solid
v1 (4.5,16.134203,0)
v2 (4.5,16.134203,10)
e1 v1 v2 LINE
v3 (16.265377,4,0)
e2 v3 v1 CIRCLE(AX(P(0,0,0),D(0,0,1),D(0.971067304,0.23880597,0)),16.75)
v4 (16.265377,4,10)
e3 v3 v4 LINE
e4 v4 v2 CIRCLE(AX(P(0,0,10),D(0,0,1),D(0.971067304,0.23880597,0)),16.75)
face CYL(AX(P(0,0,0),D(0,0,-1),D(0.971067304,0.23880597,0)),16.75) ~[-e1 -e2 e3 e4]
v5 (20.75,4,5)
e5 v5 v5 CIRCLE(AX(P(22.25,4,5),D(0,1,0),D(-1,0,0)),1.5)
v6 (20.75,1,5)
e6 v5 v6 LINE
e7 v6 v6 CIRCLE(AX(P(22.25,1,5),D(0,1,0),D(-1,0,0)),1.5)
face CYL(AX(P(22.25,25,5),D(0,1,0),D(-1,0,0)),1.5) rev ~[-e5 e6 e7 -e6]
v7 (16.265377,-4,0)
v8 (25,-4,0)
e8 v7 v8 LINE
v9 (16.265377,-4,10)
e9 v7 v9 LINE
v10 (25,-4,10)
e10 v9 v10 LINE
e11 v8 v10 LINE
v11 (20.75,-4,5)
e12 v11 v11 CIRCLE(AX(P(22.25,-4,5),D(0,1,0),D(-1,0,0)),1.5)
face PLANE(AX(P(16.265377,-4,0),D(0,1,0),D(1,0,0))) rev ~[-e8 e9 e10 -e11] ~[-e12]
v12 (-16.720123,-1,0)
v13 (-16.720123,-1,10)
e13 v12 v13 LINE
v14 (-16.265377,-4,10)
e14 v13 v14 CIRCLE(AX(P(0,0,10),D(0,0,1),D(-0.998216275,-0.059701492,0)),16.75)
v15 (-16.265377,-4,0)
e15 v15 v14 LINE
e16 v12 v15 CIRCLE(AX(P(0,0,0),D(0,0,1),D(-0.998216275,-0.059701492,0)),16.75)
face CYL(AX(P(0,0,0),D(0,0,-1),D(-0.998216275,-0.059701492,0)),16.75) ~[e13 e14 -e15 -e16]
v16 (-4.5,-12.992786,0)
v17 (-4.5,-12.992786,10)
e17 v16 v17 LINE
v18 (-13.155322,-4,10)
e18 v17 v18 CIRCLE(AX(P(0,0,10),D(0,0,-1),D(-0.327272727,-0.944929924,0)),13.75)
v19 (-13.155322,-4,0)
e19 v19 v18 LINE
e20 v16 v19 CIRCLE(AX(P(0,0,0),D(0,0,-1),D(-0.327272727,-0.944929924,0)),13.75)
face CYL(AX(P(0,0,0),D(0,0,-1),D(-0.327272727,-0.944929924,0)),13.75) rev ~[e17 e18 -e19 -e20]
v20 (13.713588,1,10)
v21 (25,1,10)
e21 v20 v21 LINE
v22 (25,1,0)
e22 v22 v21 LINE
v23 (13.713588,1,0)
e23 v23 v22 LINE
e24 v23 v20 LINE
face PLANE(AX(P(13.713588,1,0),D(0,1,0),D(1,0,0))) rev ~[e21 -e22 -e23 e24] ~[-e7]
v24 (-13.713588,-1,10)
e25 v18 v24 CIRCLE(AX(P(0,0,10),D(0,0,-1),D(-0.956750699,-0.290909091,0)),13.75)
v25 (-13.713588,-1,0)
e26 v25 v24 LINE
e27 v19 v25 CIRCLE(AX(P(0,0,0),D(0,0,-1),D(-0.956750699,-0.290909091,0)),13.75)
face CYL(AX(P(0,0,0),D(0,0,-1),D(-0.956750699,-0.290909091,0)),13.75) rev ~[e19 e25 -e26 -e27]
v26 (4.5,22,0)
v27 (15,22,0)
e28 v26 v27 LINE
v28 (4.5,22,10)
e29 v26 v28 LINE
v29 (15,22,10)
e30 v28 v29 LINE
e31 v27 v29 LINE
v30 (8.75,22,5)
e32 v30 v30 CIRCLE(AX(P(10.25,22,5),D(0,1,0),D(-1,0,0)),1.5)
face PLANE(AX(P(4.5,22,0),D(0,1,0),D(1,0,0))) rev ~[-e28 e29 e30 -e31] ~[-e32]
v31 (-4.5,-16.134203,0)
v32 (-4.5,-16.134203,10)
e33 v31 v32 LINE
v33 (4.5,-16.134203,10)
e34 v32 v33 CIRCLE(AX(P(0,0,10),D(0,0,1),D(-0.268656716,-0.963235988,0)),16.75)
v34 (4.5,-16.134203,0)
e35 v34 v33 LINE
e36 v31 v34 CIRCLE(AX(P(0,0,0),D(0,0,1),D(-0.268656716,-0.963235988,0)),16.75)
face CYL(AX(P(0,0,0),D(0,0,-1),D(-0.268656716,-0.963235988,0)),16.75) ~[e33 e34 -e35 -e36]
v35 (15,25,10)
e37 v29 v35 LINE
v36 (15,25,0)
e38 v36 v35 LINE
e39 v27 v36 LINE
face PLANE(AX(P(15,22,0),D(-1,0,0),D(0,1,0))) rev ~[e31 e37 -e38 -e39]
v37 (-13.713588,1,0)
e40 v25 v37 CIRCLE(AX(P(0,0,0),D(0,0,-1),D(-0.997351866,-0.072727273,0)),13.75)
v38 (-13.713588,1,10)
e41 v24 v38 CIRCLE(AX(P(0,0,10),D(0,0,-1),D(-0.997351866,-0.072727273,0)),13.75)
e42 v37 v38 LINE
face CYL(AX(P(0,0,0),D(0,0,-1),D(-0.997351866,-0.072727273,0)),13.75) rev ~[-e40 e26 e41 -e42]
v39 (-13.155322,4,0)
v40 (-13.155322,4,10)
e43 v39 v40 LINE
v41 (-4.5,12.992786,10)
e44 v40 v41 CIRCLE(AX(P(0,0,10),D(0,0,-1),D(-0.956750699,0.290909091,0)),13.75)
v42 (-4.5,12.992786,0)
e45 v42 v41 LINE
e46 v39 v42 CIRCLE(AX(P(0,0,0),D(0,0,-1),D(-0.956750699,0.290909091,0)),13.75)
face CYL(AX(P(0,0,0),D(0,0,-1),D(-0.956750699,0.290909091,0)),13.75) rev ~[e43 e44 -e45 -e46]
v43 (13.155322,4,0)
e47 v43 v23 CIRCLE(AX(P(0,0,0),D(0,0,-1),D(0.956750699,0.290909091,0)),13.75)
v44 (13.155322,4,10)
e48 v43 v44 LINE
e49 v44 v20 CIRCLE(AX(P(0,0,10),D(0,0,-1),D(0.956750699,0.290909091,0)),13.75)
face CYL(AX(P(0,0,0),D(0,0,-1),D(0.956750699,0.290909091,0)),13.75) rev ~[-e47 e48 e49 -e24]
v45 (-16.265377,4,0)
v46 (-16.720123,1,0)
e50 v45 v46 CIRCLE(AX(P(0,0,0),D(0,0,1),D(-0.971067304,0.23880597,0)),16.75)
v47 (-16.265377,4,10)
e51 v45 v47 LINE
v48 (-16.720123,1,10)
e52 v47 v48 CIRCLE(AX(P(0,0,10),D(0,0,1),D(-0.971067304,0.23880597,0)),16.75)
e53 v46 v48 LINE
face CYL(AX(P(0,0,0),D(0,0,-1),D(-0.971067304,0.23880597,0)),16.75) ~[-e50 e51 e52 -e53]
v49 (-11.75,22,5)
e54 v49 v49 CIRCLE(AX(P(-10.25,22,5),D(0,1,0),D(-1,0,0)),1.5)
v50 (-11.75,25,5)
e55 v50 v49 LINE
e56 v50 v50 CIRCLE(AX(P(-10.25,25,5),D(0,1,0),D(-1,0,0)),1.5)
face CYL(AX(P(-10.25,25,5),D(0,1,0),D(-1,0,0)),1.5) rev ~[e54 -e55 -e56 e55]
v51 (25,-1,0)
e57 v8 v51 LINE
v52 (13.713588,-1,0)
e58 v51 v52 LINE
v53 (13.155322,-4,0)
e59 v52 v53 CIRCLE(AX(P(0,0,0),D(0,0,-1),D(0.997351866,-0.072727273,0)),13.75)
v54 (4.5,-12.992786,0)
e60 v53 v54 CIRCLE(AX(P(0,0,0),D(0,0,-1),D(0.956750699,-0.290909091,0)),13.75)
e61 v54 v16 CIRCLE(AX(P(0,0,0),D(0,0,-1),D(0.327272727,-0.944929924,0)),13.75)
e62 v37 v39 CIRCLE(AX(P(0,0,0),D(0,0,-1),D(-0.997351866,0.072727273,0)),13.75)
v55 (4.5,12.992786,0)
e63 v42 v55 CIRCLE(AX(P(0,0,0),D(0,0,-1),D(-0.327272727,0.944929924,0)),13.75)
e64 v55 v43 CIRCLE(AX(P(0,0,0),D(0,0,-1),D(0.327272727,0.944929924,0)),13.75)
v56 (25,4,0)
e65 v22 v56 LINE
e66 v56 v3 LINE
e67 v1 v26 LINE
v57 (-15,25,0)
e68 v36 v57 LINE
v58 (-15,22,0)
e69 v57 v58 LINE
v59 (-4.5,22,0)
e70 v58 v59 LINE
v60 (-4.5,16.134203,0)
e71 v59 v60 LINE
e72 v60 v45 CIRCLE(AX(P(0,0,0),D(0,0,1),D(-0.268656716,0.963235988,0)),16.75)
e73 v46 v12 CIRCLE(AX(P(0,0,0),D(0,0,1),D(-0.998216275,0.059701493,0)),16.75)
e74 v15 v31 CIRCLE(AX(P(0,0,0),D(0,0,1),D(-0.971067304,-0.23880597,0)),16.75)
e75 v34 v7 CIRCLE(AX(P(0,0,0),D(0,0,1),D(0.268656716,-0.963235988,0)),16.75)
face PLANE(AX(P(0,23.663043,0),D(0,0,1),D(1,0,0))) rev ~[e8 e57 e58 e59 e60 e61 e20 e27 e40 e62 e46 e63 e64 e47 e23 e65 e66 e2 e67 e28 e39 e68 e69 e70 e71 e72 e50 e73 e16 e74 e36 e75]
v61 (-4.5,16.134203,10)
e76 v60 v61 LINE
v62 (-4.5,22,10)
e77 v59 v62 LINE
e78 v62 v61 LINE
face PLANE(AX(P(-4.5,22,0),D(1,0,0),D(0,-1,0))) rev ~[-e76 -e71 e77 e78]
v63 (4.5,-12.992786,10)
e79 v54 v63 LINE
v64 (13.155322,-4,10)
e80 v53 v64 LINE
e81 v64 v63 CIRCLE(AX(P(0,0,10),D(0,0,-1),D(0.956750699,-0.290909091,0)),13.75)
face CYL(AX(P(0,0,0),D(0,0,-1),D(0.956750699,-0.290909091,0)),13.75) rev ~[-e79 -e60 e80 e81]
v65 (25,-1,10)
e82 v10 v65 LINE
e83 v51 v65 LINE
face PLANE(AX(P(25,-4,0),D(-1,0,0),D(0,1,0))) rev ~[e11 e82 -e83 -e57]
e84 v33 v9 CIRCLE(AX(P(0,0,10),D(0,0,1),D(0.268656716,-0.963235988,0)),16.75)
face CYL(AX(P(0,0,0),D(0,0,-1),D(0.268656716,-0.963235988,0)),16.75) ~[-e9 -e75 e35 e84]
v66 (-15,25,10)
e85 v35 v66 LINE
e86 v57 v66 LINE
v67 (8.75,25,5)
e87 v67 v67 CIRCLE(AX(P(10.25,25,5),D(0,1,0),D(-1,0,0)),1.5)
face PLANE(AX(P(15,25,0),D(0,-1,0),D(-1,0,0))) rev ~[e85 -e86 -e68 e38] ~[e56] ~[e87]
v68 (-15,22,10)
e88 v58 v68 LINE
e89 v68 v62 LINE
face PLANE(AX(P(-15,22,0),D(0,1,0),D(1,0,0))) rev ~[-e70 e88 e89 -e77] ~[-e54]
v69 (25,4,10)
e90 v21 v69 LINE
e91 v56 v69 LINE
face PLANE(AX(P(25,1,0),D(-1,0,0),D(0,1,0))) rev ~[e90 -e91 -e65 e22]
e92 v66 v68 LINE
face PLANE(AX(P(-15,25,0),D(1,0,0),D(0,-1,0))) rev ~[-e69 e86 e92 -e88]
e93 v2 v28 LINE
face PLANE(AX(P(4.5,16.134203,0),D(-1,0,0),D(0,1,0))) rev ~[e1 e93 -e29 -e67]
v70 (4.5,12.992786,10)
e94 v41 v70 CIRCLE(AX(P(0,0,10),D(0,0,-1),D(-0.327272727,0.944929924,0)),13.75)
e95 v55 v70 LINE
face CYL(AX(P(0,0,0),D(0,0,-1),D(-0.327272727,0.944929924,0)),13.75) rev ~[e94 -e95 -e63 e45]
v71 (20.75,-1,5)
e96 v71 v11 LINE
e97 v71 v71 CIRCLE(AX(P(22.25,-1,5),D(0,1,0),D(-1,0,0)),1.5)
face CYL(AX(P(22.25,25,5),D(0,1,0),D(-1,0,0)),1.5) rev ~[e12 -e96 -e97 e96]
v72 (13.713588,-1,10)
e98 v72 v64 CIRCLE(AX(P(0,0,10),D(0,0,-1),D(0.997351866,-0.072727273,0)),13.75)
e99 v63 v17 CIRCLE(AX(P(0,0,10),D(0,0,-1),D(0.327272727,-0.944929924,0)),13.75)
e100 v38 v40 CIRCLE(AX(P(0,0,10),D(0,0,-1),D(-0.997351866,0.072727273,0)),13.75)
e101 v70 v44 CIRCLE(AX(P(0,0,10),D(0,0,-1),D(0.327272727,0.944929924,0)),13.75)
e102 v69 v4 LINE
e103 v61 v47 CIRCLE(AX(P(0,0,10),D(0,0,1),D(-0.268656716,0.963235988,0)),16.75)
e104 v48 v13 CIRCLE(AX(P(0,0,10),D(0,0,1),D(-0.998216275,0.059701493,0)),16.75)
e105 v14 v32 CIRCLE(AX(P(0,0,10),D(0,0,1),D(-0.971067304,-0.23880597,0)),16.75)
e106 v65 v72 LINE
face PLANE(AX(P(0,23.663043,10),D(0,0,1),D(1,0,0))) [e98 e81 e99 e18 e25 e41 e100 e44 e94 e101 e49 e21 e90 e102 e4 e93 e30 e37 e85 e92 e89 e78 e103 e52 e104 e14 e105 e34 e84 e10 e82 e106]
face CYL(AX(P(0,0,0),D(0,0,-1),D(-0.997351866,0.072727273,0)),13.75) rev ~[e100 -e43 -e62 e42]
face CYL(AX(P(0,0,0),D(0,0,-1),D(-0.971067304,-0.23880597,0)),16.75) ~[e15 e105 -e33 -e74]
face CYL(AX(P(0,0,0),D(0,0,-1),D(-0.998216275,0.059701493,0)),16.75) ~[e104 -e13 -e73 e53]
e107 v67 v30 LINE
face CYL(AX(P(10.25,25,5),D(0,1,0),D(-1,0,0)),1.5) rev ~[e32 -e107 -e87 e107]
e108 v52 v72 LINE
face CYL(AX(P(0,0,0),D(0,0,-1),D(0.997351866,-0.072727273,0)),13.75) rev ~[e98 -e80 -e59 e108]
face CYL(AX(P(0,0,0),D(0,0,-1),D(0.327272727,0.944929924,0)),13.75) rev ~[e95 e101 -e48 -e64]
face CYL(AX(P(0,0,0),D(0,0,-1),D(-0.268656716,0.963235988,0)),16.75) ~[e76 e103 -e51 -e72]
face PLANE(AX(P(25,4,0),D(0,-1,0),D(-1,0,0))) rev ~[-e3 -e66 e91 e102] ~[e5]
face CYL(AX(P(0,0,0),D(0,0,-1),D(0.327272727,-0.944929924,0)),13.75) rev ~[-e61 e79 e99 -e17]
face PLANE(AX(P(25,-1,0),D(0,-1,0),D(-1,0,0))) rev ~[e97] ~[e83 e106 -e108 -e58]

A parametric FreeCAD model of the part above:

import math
import FreeCAD as App
import Part
import Sketcher
from FreeCAD import Vector
Q = App.Units.Quantity

doc = App.newDocument("Part")
body = doc.addObject("PartDesign::Body", "Body")

# Sketch on XY plane
sketch1 = body.newObject("Sketcher::SketchObject", "Sketch")
sketch1.AttachmentSupport = (doc.getObject("XY_Plane"), [""])
sketch1.MapMode = "FlatFace"
sketch1.addGeometry(Part.LineSegment(Vector(15, 22, 0), Vector(15, 25, 0)), False)
sketch1.addGeometry(Part.LineSegment(Vector(15, 25, 0), Vector(-15, 25, 0)), False)
sketch1.addGeometry(Part.LineSegment(Vector(-15, 25, 0), Vector(-15, 22, 0)), False)
sketch1.addGeometry(Part.LineSegment(Vector(-15, 22, 0), Vector(-4.5, 22, 0)), False)
sketch1.addGeometry(Part.LineSegment(Vector(-4.5, 22, 0), Vector(-4.5, 16.1, 0)), False)
sketch1.addGeometry(Part.ArcOfCircle(Part.Circle(Vector(0, 0, 0), Vector(0, 0, 1), 16.8), math.radians(106), math.radians(166)), False)
sketch1.addGeometry(Part.ArcOfCircle(Part.Circle(Vector(0, 0, 0), Vector(0, 0, 1), 16.7), math.radians(166.18), math.radians(176.58)), False)
sketch1.addGeometry(Part.ArcOfCircle(Part.Circle(Vector(0, 0, 0), Vector(0, 0, 1), 16.7), math.radians(176.58), math.radians(183.42)), False)
sketch1.addGeometry(Part.ArcOfCircle(Part.Circle(Vector(0, 0, 0), Vector(0, 0, 1), 16.7), math.radians(-176.58), math.radians(-166.18)), False)
sketch1.addGeometry(Part.ArcOfCircle(Part.Circle(Vector(0, 0, 0), Vector(0, 0, 1), 16.8), math.radians(-166), math.radians(-106)), False)
sketch1.addGeometry(Part.ArcOfCircle(Part.Circle(Vector(0, 0, 0), Vector(0, 0, 1), 16.8), math.radians(-106), math.radians(-74)), False)
sketch1.addGeometry(Part.ArcOfCircle(Part.Circle(Vector(0, 0, 0), Vector(0, 0, 1), 16.8), math.radians(-74), math.radians(-14)), False)
sketch1.addGeometry(Part.LineSegment(Vector(16.3, -4, 0), Vector(25, -4, 0)), False)
sketch1.addGeometry(Part.LineSegment(Vector(25, -4, 0), Vector(25, -1, 0)), False)
sketch1.addGeometry(Part.LineSegment(Vector(25, -1, 0), Vector(13.7, -1, 0)), False)
sketch1.addGeometry(Part.ArcOfCircle(Part.Circle(Vector(0, 0, 0), Vector(0, 0, 1), 13.7), math.radians(-16.91), math.radians(-4.17)), False)
sketch1.addGeometry(Part.ArcOfCircle(Part.Circle(Vector(0, 0, 0), Vector(0, 0, 1), 13.8), math.radians(-71), math.radians(-17)), False)
sketch1.addGeometry(Part.ArcOfCircle(Part.Circle(Vector(0, 0, 0), Vector(0, 0, 1), 13.8), math.radians(-109), math.radians(-71)), False)
sketch1.addGeometry(Part.ArcOfCircle(Part.Circle(Vector(0, 0, 0), Vector(0, 0, 1), 13.8), math.radians(-163), math.radians(-109)), False)
sketch1.addGeometry(Part.ArcOfCircle(Part.Circle(Vector(0, 0, 0), Vector(0, 0, 1), 13.7), math.radians(-175.83), math.radians(-163.09)), False)
sketch1.addGeometry(Part.ArcOfCircle(Part.Circle(Vector(0, 0, 0), Vector(0, 0, 1), 13.7), math.radians(175.83), math.radians(184.17)), False)
sketch1.addGeometry(Part.ArcOfCircle(Part.Circle(Vector(0, 0, 0), Vector(0, 0, 1), 13.7), math.radians(163.09), math.radians(175.83)), False)
sketch1.addGeometry(Part.ArcOfCircle(Part.Circle(Vector(0, 0, 0), Vector(0, 0, 1), 13.8), math.radians(109), math.radians(163)), False)
sketch1.addGeometry(Part.ArcOfCircle(Part.Circle(Vector(0, 0, 0), Vector(0, 0, 1), 13.8), math.radians(71), math.radians(109)), False)
sketch1.addGeometry(Part.ArcOfCircle(Part.Circle(Vector(0, 0, 0), Vector(0, 0, 1), 13.8), math.radians(17), math.radians(71)), False)
sketch1.addGeometry(Part.ArcOfCircle(Part.Circle(Vector(0, 0, 0), Vector(0, 0, 1), 13.7), math.radians(4.17), math.radians(16.91)), False)
sketch1.addGeometry(Part.LineSegment(Vector(13.7, 1, 0), Vector(25, 1, 0)), False)
sketch1.addGeometry(Part.LineSegment(Vector(25, 1, 0), Vector(25, 4, 0)), False)
sketch1.addGeometry(Part.LineSegment(Vector(25, 4, 0), Vector(16.3, 4, 0)), False)
sketch1.addGeometry(Part.ArcOfCircle(Part.Circle(Vector(0, 0, 0), Vector(0, 0, 1), 16.8), math.radians(14), math.radians(74)), False)
sketch1.addGeometry(Part.LineSegment(Vector(4.5, 16.1, 0), Vector(4.5, 22, 0)), False)
sketch1.addGeometry(Part.LineSegment(Vector(4.5, 22, 0), Vector(15, 22, 0)), False)
sketch1.addConstraint(Sketcher.Constraint("Coincident", 0, 2, 1, 1))
sketch1.addConstraint(Sketcher.Constraint("Coincident", 1, 2, 2, 1))
sketch1.addConstraint(Sketcher.Constraint("Coincident", 2, 2, 3, 1))
sketch1.addConstraint(Sketcher.Constraint("Coincident", 3, 2, 4, 1))
sketch1.addConstraint(Sketcher.Constraint("Coincident", 4, 2, 5, 1))
sketch1.addConstraint(Sketcher.Constraint("Tangent", 5, 2, 6, 1))
sketch1.addConstraint(Sketcher.Constraint("Tangent", 6, 2, 7, 1))
sketch1.addConstraint(Sketcher.Constraint("Tangent", 7, 2, 8, 1))
sketch1.addConstraint(Sketcher.Constraint("Tangent", 8, 2, 9, 1))
sketch1.addConstraint(Sketcher.Constraint("Tangent", 9, 2, 10, 1))
sketch1.addConstraint(Sketcher.Constraint("Tangent", 10, 2, 11, 1))
sketch1.addConstraint(Sketcher.Constraint("Coincident", 11, 2, 12, 1))
sketch1.addConstraint(Sketcher.Constraint("Coincident", 12, 2, 13, 1))
sketch1.addConstraint(Sketcher.Constraint("Coincident", 13, 2, 14, 1))
sketch1.addConstraint(Sketcher.Constraint("Coincident", 14, 2, 15, 2))
sketch1.addConstraint(Sketcher.Constraint("Tangent", 15, 1, 16, 2))
sketch1.addConstraint(Sketcher.Constraint("Tangent", 16, 1, 17, 2))
sketch1.addConstraint(Sketcher.Constraint("Tangent", 17, 1, 18, 2))
sketch1.addConstraint(Sketcher.Constraint("Tangent", 18, 1, 19, 2))
sketch1.addConstraint(Sketcher.Constraint("Tangent", 19, 1, 20, 2))
sketch1.addConstraint(Sketcher.Constraint("Tangent", 20, 1, 21, 2))
sketch1.addConstraint(Sketcher.Constraint("Tangent", 21, 1, 22, 2))
sketch1.addConstraint(Sketcher.Constraint("Tangent", 22, 1, 23, 2))
sketch1.addConstraint(Sketcher.Constraint("Tangent", 23, 1, 24, 2))
sketch1.addConstraint(Sketcher.Constraint("Tangent", 24, 1, 25, 2))
sketch1.addConstraint(Sketcher.Constraint("Coincident", 25, 1, 26, 1))
sketch1.addConstraint(Sketcher.Constraint("Coincident", 26, 2, 27, 1))
sketch1.addConstraint(Sketcher.Constraint("Coincident", 27, 2, 28, 1))
sketch1.addConstraint(Sketcher.Constraint("Coincident", 28, 2, 29, 1))
sketch1.addConstraint(Sketcher.Constraint("Coincident", 29, 2, 30, 1))
sketch1.addConstraint(Sketcher.Constraint("Coincident", 30, 2, 31, 1))
sketch1.addConstraint(Sketcher.Constraint("Coincident", 31, 2, 0, 1))
sketch1.addConstraint(Sketcher.Constraint("Vertical", 0))
sketch1.addConstraint(Sketcher.Constraint("Horizontal", 1))
sketch1.addConstraint(Sketcher.Constraint("Vertical", 2))
sketch1.addConstraint(Sketcher.Constraint("Horizontal", 3))
sketch1.addConstraint(Sketcher.Constraint("Vertical", 4))
sketch1.addConstraint(Sketcher.Constraint("Horizontal", 12))
sketch1.addConstraint(Sketcher.Constraint("Vertical", 13))
sketch1.addConstraint(Sketcher.Constraint("Horizontal", 14))
sketch1.addConstraint(Sketcher.Constraint("Horizontal", 26))
sketch1.addConstraint(Sketcher.Constraint("Vertical", 27))
sketch1.addConstraint(Sketcher.Constraint("Horizontal", 28))
sketch1.addConstraint(Sketcher.Constraint("Vertical", 30))
sketch1.addConstraint(Sketcher.Constraint("Horizontal", 31))
sketch1.addConstraint(Sketcher.Constraint("Coincident", 5, 3, -1, 1))
sketch1.addConstraint(Sketcher.Constraint("Coincident", 7, 3, -1, 1))
sketch1.addConstraint(Sketcher.Constraint("Coincident", 9, 3, -1, 1))
sketch1.addConstraint(Sketcher.Constraint("Coincident", 11, 3, -1, 1))
sketch1.addConstraint(Sketcher.Constraint("Coincident", 15, 3, -1, 1))
sketch1.addConstraint(Sketcher.Constraint("Coincident", 17, 3, -1, 1))
sketch1.addConstraint(Sketcher.Constraint("Coincident", 19, 3, -1, 1))
sketch1.addConstraint(Sketcher.Constraint("Coincident", 21, 3, -1, 1))
sketch1.addConstraint(Sketcher.Constraint("Coincident", 23, 3, -1, 1))
sketch1.addConstraint(Sketcher.Constraint("Coincident", 25, 3, -1, 1))
sketch1.addConstraint(Sketcher.Constraint("Coincident", 29, 3, -1, 1))
sketch1.addConstraint(Sketcher.Constraint("Equal", 11, 29))
sketch1.addConstraint(Sketcher.Constraint("Symmetric", 3, 2, 30, 2, -2))
sketch1.addConstraint(Sketcher.Constraint("Symmetric", 13, 2, 26, 2, -1))
sketch1.addConstraint(Sketcher.Constraint("Horizontal", 9, 2, 10, 2))
sketch1.addConstraint(Sketcher.Constraint("Horizontal", 8, 2, 11, 2))
sketch1.addConstraint(Sketcher.Constraint("Horizontal", 7, 2, 13, 2))
sketch1.addConstraint(Sketcher.Constraint("Horizontal", 12, 2, 15, 1))
sketch1.addConstraint(Sketcher.Constraint("Horizontal", 16, 1, 17, 1))
sketch1.addConstraint(Sketcher.Constraint("Horizontal", 15, 1, 18, 1))
sketch1.addConstraint(Sketcher.Constraint("Horizontal", 14, 2, 19, 1))
sketch1.addConstraint(Sketcher.Constraint("Horizontal", 6, 2, 20, 1))
sketch1.addConstraint(Sketcher.Constraint("Horizontal", 5, 2, 21, 1))
sketch1.addConstraint(Sketcher.Constraint("Horizontal", 22, 1, 23, 1))
sketch1.addConstraint(Sketcher.Constraint("Horizontal", 21, 1, 24, 1))
sketch1.addConstraint(Sketcher.Constraint("Horizontal", 20, 1, 25, 1))
sketch1.addConstraint(Sketcher.Constraint("Horizontal", 24, 1, 27, 2))
sketch1.addConstraint(Sketcher.Constraint("Vertical", 5, 2, 8, 2))
sketch1.addConstraint(Sketcher.Constraint("Vertical", 4, 2, 9, 2))
sketch1.addConstraint(Sketcher.Constraint("Vertical", 10, 2, 16, 1))
sketch1.addConstraint(Sketcher.Constraint("Vertical", 17, 1, 22, 1))
sketch1.addConstraint(Sketcher.Constraint("Equal", 3, 31))
sketch1.addConstraint(Sketcher.Constraint("Equal", 2, 13))
sketch1.addConstraint(Sketcher.Constraint("DistanceX", 1, 2, 1, 1, Q("30 mm")))
sketch1.addConstraint(Sketcher.Constraint("DistanceY", 0, 1, 0, 2, Q("3 mm")))
sketch1.addConstraint(Sketcher.Constraint("Radius", 5, Q("16.75 mm")))
sketch1.addConstraint(Sketcher.Constraint("Radius", 15, Q("13.75 mm")))
sketch1.addConstraint(Sketcher.Constraint("DistanceX", 3, 1, 3, 2, Q("10.5 mm")))
sketch1.addConstraint(Sketcher.Constraint("DistanceY", -1, 1, 0, 2, Q("25 mm")))
sketch1.addConstraint(Sketcher.Constraint("DistanceY", -1, 1, 5, 2, Q("4 mm")))
sketch1.addConstraint(Sketcher.Constraint("DistanceX", -1, 1, 12, 2, Q("25 mm")))
pad1 = body.newObject("PartDesign::Pad", "Pad")
pad1.Profile = sketch1
pad1.Length = 10

# Sketch on XZ plane
sketch2 = body.newObject("Sketcher::SketchObject", "Sketch001")
sketch2.AttachmentSupport = (doc.getObject("XZ_Plane"), [""])
sketch2.MapMode = "FlatFace"
sketch2.AttachmentOffset = App.Placement(Vector(0, 0, -25), App.Rotation())
sketch2.addGeometry(Part.Circle(Vector(10.2, 5, 0), Vector(0, 0, 1), 1.5), False)
sketch2.addGeometry(Part.Circle(Vector(-10.2, 5, 0), Vector(0, 0, 1), 1.5), False)
sketch2.addGeometry(Part.Circle(Vector(22.2, 5, 0), Vector(0, 0, 1), 1.5), False)
sketch2.addConstraint(Sketcher.Constraint("Equal", 0, 1))
sketch2.addConstraint(Sketcher.Constraint("Equal", 1, 2))
sketch2.addConstraint(Sketcher.Constraint("Symmetric", 0, 3, 1, 3, -2))
sketch2.addConstraint(Sketcher.Constraint("Horizontal", 1, 3, 2, 3))
sketch2.addConstraint(Sketcher.Constraint("Diameter", 0, Q("3 mm")))
sketch2.addConstraint(Sketcher.Constraint("DistanceY", -1, 1, 0, 3, Q("5 mm")))
sketch2.addConstraint(Sketcher.Constraint("DistanceX", 0, 3, 2, 3, Q("12 mm")))
sketch2.addConstraint(Sketcher.Constraint("DistanceX", 1, 3, 0, 3, Q("20.5 mm")))
pocket1 = body.newObject("PartDesign::Pocket", "Pocket")
pocket1.Profile = sketch2
pocket1.Length = 3
pocket1.Reversed = True

# Sketch on XZ plane
sketch3 = body.newObject("Sketcher::SketchObject", "Sketch002")
sketch3.AttachmentSupport = (doc.getObject("XZ_Plane"), [""])
sketch3.MapMode = "FlatFace"
sketch3.AttachmentOffset = App.Placement(Vector(0, 0, -25), App.Rotation())
sketch3.addGeometry(Part.Circle(Vector(22.2, 5, 0), Vector(0, 0, 1), 1.5), False)
sketch3.addConstraint(Sketcher.Constraint("Diameter", 0, Q("3 mm")))
sketch3.addConstraint(Sketcher.Constraint("DistanceY", -1, 1, 0, 3, Q("5 mm")))
sketch3.addConstraint(Sketcher.Constraint("DistanceX", -1, 1, 0, 3, Q("22.25 mm")))
pocket2 = body.newObject("PartDesign::Pocket", "Pocket001")
pocket2.Profile = sketch3
pocket2.Type = "ThroughAll"
pocket2.Reversed = True

doc.recompute()
